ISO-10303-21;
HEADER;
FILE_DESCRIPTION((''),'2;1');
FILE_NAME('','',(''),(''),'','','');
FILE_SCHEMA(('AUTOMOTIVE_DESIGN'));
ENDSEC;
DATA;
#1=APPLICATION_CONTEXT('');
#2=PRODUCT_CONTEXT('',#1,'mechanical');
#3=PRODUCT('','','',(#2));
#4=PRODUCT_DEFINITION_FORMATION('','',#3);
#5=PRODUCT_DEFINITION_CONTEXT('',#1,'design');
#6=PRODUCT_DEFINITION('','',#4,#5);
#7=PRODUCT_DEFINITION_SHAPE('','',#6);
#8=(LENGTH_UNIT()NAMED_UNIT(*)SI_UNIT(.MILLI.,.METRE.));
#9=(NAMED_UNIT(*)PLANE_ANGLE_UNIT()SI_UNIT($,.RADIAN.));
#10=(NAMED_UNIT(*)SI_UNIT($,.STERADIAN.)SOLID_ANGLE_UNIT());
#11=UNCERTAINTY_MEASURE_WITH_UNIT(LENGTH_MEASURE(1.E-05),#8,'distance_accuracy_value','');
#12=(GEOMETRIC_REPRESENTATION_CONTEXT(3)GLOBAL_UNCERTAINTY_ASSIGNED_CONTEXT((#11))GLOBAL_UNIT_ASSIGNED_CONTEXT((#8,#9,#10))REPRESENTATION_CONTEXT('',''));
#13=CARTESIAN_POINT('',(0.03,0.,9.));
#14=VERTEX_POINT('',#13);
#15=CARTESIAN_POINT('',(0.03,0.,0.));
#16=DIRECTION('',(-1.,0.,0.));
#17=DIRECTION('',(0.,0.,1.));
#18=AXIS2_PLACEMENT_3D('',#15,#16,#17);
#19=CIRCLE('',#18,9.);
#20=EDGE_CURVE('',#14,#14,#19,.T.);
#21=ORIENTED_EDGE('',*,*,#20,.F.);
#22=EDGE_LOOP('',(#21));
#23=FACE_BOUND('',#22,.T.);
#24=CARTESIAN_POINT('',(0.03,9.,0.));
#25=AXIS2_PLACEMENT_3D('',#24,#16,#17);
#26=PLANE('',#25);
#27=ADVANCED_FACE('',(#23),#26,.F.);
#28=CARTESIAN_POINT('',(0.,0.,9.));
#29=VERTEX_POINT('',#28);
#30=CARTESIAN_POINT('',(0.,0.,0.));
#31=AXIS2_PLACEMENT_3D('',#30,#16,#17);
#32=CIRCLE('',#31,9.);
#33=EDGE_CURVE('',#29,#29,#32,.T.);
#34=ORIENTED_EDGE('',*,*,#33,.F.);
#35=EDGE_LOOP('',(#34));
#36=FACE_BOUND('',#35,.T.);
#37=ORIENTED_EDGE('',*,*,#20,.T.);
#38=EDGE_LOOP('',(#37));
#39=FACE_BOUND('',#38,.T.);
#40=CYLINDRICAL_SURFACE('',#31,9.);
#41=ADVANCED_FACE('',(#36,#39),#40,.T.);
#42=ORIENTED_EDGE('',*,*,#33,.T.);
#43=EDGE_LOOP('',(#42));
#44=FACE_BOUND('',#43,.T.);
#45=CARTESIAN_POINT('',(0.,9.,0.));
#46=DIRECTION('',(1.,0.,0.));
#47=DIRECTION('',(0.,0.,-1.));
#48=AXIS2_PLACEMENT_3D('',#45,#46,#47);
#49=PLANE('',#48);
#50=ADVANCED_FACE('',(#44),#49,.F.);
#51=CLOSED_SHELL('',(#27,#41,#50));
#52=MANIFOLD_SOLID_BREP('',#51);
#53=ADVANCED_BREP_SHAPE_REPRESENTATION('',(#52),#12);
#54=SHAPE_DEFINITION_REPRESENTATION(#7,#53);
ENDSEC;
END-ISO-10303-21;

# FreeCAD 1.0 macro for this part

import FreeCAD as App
import Part
import Sketcher

V = App.Vector

doc = App.newDocument("Part")
body = doc.addObject("PartDesign::Body", "Body")

# Sketch on XY plane
sketch1 = doc.addObject("Sketcher::SketchObject", "Sketch")
body.addObject(sketch1)
sketch1.AttachmentSupport = (doc.XY_Plane, [""])
sketch1.MapMode = "FlatFace"
sketch1.addGeometry(Part.LineSegment(V(0, 9, 0), V(0, 0, 0)), False)
sketch1.addGeometry(Part.LineSegment(V(0, 0, 0), V(0.03, 0, 0)), False)
sketch1.addGeometry(Part.LineSegment(V(0.03, 0, 0), V(0.03, 9, 0)), False)
sketch1.addGeometry(Part.LineSegment(V(0.03, 9, 0), V(0, 9, 0)), False)
sketch1.addConstraint(Sketcher.Constraint("Coincident", 0, 2, 1, 1))
sketch1.addConstraint(Sketcher.Constraint("Coincident", 1, 2, 2, 1))
sketch1.addConstraint(Sketcher.Constraint("Coincident", 2, 2, 3, 1))
sketch1.addConstraint(Sketcher.Constraint("Coincident", 3, 2, 0, 1))
sketch1.addConstraint(Sketcher.Constraint("Vertical", 0))
sketch1.addConstraint(Sketcher.Constraint("Horizontal", 1))
sketch1.addConstraint(Sketcher.Constraint("Vertical", 2))
sketch1.addConstraint(Sketcher.Constraint("Horizontal", 3))
sketch1.addConstraint(Sketcher.Constraint("Coincident", 0, 2, -1, 1))
sketch1.addConstraint(Sketcher.Constraint("DistanceY", 0, 2, 0, 1, 9.0))
sketch1.addConstraint(Sketcher.Constraint("DistanceX", 1, 1, 1, 2, 0.03))
revolution = doc.addObject("PartDesign::Revolution", "Revolution")
body.addObject(revolution)
revolution.Profile = sketch1
revolution.ReferenceAxis = (sketch1, ["H_Axis"])
revolution.Angle = 360

doc.recompute()
